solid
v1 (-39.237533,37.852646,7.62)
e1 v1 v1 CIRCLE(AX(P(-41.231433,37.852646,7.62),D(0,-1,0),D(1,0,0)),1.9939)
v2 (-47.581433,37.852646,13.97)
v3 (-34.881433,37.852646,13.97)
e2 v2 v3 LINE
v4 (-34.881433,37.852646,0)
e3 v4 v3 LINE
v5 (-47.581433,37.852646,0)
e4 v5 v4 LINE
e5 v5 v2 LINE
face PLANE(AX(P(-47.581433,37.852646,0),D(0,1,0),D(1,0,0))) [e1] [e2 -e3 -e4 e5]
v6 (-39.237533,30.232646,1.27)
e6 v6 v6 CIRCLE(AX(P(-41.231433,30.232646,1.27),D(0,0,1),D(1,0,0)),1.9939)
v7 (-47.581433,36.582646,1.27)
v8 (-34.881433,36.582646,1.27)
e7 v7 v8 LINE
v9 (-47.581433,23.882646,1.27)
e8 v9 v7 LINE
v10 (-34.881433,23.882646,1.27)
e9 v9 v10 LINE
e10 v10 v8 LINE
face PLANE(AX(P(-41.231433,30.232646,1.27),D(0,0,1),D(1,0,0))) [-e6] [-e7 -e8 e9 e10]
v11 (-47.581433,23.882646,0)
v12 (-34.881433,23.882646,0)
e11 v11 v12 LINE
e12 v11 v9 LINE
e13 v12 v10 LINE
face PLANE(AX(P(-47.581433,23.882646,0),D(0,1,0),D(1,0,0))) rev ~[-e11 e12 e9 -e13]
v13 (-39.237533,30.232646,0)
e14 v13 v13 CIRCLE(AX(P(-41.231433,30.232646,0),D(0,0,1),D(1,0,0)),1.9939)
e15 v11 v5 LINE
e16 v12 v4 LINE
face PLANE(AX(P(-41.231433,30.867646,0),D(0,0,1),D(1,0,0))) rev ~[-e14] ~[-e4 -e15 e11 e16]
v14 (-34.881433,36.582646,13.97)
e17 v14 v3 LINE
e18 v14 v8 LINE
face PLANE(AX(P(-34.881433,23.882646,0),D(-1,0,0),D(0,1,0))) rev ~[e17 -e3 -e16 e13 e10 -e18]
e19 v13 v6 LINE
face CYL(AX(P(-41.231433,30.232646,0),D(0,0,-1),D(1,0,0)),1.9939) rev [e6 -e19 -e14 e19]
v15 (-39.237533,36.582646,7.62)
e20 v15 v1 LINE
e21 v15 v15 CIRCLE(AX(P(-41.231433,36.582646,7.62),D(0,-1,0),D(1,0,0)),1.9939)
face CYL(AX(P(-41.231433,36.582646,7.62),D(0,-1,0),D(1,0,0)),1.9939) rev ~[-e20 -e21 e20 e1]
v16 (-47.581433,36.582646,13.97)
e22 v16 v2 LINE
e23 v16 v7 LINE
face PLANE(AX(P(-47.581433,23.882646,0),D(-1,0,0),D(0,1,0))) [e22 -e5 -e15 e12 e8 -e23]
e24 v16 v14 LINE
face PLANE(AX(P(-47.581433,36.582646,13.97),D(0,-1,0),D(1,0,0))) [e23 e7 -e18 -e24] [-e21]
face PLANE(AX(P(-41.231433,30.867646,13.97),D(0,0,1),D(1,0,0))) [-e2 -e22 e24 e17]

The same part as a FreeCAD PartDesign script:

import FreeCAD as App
import Part
import Sketcher

V = App.Vector
Q = App.Units.Quantity


def add_polygon(sketch, points):
    """Adds a closed chain of lines whose ends are joined by coincident constraints."""
    first, n = sketch.GeometryCount, len(points)
    for a, b in zip(points, points[1:] + points[:1]):
        sketch.addGeometry(Part.LineSegment(App.Vector(*a, 0), App.Vector(*b, 0)), False)
    for i in range(n):
        sketch.addConstraint(Sketcher.Constraint("Coincident", first + i, 2, first + (i + 1) % n, 1))

doc = App.newDocument("Part")
params = doc.addObject("Spreadsheet::Sheet", "Params")
for row, (alias, value) in enumerate([
    ("sketch1_diameter", "0.157 in"),
    ("sketch1_width", "0.5 in"),
    ("sketch1_height", "0.55 in"),
    ("pad1_length", "0.55 in"),
    ("sketch2_diameter", "0.157 in"),
    ("sketch2_width", "0.5 in"),
    ("pocket1_length", "0.5 in"),
    ("sketch3_diameter", "0.157 in"),
    ("pocket2_length", "1 in"),
], start=1):
    params.set(f"A{row}", alias)
    params.set(f"B{row}", "=" + value)
    params.setAlias(f"B{row}", alias)

body = doc.addObject("PartDesign::Body", "Body")

# Sketch on XY plane
sketch1 = doc.addObject("Sketcher::SketchObject", "Sketch")
body.addObject(sketch1)
sketch1.AttachmentSupport = (doc.XY_Plane, [""])
sketch1.MapMode = "FlatFace"
add_polygon(sketch1, [(-47.6, 37.9), (-47.6, 23.9), (-34.9, 23.9), (-34.9, 37.9)])  # lines 0-3
sketch1.addGeometry(Part.Circle(V(-41.2, 30.2, 0), V(0, 0, 1), 2), False)  # 4
sketch1.addConstraint(Sketcher.Constraint("Vertical", 0))
sketch1.addConstraint(Sketcher.Constraint("Horizontal", 1))
sketch1.addConstraint(Sketcher.Constraint("Vertical", 2))
sketch1.addConstraint(Sketcher.Constraint("Horizontal", 3))
sketch1.addConstraint(Sketcher.Constraint("Diameter", 4, Q("0.157 in")))
sketch1.addConstraint(Sketcher.Constraint("DistanceX", 1, 1, 1, 2, Q("0.5 in")))
sketch1.addConstraint(Sketcher.Constraint("DistanceY", 0, 2, 0, 1, Q("0.55 in")))
sketch1.addConstraint(Sketcher.Constraint("DistanceY", 4, 3, 2, 2, Q("0.3 in")))
sketch1.addConstraint(Sketcher.Constraint("DistanceX", 0, 2, 4, 3, Q("0.25 in")))
sketch1.addConstraint(Sketcher.Constraint("DistanceX", 4, 3, -1, 1, Q("41.231433 mm")))
sketch1.addConstraint(Sketcher.Constraint("DistanceY", -1, 1, 4, 3, Q("30.232646 mm")))
sketch1.setExpression("Constraints[8]", "Params.sketch1_diameter")
sketch1.setExpression("Constraints[9]", "Params.sketch1_width")
sketch1.setExpression("Constraints[10]", "Params.sketch1_height")
pad1 = doc.addObject("PartDesign::Pad", "Pad")
body.addObject(pad1)
pad1.Profile = sketch1
pad1.setExpression("Length", "Params.pad1_length")

# Sketch on XY plane
sketch2 = doc.addObject("Sketcher::SketchObject", "Sketch001")
body.addObject(sketch2)
sketch2.AttachmentSupport = (doc.XY_Plane, [""])
sketch2.MapMode = "FlatFace"
sketch2.AttachmentOffset = App.Placement(V(0, 0, 0.55 * 25.4), App.Rotation())
add_polygon(sketch2, [(-47.6, 36.6), (-47.6, 23.9), (-34.9, 23.9), (-34.9, 36.6)])  # lines 0-3
sketch2.addGeometry(Part.Circle(V(-41.2, 30.2, 0), V(0, 0, 1), 2), False)  # 4
sketch2.addConstraint(Sketcher.Constraint("Vertical", 0))
sketch2.addConstraint(Sketcher.Constraint("Horizontal", 1))
sketch2.addConstraint(Sketcher.Constraint("Vertical", 2))
sketch2.addConstraint(Sketcher.Constraint("Horizontal", 3))
sketch2.addConstraint(Sketcher.Constraint("Equal", 3, 0))
sketch2.addConstraint(Sketcher.Constraint("Diameter", 4, Q("0.157 in")))
sketch2.addConstraint(Sketcher.Constraint("DistanceX", 1, 1, 1, 2, Q("0.5 in")))
sketch2.addConstraint(Sketcher.Constraint("DistanceX", 0, 2, 4, 3, Q("0.25 in")))
sketch2.addConstraint(Sketcher.Constraint("DistanceY", 0, 2, 4, 3, Q("0.25 in")))
sketch2.addConstraint(Sketcher.Constraint("DistanceX", 4, 3, -1, 1, Q("41.231433 mm")))
sketch2.addConstraint(Sketcher.Constraint("DistanceY", -1, 1, 4, 3, Q("30.232646 mm")))
sketch2.setExpression("Constraints[9]", "Params.sketch2_diameter")
sketch2.setExpression("Constraints[10]", "Params.sketch2_width")
pocket1 = doc.addObject("PartDesign::Pocket", "Pocket")
body.addObject(pocket1)
pocket1.Profile = sketch2
pocket1.setExpression("Length", "Params.pocket1_length")

# Sketch on XZ plane
sketch3 = doc.addObject("Sketcher::SketchObject", "Sketch002")
body.addObject(sketch3)
sketch3.AttachmentSupport = (doc.XZ_Plane, [""])
sketch3.MapMode = "FlatFace"
sketch3.AttachmentOffset = App.Placement(V(0, 0, -36.582646), App.Rotation())
sketch3.addGeometry(Part.Circle(V(-41.2, 7.6, 0), V(0, 0, 1), 2), False)
sketch3.addConstraint(Sketcher.Constraint("Diameter", 0, Q("0.157 in")))
sketch3.addConstraint(Sketcher.Constraint("DistanceY", -1, 1, 0, 3, Q("0.3 in")))
sketch3.addConstraint(Sketcher.Constraint("DistanceX", 0, 3, -1, 1, Q("41.231433 mm")))
sketch3.setExpression("Constraints[0]", "Params.sketch3_diameter")
pocket2 = doc.addObject("PartDesign::Pocket", "Pocket001")
body.addObject(pocket2)
pocket2.Profile = sketch3
pocket2.setExpression("Length", "Params.pocket2_length")

doc.recompute()
